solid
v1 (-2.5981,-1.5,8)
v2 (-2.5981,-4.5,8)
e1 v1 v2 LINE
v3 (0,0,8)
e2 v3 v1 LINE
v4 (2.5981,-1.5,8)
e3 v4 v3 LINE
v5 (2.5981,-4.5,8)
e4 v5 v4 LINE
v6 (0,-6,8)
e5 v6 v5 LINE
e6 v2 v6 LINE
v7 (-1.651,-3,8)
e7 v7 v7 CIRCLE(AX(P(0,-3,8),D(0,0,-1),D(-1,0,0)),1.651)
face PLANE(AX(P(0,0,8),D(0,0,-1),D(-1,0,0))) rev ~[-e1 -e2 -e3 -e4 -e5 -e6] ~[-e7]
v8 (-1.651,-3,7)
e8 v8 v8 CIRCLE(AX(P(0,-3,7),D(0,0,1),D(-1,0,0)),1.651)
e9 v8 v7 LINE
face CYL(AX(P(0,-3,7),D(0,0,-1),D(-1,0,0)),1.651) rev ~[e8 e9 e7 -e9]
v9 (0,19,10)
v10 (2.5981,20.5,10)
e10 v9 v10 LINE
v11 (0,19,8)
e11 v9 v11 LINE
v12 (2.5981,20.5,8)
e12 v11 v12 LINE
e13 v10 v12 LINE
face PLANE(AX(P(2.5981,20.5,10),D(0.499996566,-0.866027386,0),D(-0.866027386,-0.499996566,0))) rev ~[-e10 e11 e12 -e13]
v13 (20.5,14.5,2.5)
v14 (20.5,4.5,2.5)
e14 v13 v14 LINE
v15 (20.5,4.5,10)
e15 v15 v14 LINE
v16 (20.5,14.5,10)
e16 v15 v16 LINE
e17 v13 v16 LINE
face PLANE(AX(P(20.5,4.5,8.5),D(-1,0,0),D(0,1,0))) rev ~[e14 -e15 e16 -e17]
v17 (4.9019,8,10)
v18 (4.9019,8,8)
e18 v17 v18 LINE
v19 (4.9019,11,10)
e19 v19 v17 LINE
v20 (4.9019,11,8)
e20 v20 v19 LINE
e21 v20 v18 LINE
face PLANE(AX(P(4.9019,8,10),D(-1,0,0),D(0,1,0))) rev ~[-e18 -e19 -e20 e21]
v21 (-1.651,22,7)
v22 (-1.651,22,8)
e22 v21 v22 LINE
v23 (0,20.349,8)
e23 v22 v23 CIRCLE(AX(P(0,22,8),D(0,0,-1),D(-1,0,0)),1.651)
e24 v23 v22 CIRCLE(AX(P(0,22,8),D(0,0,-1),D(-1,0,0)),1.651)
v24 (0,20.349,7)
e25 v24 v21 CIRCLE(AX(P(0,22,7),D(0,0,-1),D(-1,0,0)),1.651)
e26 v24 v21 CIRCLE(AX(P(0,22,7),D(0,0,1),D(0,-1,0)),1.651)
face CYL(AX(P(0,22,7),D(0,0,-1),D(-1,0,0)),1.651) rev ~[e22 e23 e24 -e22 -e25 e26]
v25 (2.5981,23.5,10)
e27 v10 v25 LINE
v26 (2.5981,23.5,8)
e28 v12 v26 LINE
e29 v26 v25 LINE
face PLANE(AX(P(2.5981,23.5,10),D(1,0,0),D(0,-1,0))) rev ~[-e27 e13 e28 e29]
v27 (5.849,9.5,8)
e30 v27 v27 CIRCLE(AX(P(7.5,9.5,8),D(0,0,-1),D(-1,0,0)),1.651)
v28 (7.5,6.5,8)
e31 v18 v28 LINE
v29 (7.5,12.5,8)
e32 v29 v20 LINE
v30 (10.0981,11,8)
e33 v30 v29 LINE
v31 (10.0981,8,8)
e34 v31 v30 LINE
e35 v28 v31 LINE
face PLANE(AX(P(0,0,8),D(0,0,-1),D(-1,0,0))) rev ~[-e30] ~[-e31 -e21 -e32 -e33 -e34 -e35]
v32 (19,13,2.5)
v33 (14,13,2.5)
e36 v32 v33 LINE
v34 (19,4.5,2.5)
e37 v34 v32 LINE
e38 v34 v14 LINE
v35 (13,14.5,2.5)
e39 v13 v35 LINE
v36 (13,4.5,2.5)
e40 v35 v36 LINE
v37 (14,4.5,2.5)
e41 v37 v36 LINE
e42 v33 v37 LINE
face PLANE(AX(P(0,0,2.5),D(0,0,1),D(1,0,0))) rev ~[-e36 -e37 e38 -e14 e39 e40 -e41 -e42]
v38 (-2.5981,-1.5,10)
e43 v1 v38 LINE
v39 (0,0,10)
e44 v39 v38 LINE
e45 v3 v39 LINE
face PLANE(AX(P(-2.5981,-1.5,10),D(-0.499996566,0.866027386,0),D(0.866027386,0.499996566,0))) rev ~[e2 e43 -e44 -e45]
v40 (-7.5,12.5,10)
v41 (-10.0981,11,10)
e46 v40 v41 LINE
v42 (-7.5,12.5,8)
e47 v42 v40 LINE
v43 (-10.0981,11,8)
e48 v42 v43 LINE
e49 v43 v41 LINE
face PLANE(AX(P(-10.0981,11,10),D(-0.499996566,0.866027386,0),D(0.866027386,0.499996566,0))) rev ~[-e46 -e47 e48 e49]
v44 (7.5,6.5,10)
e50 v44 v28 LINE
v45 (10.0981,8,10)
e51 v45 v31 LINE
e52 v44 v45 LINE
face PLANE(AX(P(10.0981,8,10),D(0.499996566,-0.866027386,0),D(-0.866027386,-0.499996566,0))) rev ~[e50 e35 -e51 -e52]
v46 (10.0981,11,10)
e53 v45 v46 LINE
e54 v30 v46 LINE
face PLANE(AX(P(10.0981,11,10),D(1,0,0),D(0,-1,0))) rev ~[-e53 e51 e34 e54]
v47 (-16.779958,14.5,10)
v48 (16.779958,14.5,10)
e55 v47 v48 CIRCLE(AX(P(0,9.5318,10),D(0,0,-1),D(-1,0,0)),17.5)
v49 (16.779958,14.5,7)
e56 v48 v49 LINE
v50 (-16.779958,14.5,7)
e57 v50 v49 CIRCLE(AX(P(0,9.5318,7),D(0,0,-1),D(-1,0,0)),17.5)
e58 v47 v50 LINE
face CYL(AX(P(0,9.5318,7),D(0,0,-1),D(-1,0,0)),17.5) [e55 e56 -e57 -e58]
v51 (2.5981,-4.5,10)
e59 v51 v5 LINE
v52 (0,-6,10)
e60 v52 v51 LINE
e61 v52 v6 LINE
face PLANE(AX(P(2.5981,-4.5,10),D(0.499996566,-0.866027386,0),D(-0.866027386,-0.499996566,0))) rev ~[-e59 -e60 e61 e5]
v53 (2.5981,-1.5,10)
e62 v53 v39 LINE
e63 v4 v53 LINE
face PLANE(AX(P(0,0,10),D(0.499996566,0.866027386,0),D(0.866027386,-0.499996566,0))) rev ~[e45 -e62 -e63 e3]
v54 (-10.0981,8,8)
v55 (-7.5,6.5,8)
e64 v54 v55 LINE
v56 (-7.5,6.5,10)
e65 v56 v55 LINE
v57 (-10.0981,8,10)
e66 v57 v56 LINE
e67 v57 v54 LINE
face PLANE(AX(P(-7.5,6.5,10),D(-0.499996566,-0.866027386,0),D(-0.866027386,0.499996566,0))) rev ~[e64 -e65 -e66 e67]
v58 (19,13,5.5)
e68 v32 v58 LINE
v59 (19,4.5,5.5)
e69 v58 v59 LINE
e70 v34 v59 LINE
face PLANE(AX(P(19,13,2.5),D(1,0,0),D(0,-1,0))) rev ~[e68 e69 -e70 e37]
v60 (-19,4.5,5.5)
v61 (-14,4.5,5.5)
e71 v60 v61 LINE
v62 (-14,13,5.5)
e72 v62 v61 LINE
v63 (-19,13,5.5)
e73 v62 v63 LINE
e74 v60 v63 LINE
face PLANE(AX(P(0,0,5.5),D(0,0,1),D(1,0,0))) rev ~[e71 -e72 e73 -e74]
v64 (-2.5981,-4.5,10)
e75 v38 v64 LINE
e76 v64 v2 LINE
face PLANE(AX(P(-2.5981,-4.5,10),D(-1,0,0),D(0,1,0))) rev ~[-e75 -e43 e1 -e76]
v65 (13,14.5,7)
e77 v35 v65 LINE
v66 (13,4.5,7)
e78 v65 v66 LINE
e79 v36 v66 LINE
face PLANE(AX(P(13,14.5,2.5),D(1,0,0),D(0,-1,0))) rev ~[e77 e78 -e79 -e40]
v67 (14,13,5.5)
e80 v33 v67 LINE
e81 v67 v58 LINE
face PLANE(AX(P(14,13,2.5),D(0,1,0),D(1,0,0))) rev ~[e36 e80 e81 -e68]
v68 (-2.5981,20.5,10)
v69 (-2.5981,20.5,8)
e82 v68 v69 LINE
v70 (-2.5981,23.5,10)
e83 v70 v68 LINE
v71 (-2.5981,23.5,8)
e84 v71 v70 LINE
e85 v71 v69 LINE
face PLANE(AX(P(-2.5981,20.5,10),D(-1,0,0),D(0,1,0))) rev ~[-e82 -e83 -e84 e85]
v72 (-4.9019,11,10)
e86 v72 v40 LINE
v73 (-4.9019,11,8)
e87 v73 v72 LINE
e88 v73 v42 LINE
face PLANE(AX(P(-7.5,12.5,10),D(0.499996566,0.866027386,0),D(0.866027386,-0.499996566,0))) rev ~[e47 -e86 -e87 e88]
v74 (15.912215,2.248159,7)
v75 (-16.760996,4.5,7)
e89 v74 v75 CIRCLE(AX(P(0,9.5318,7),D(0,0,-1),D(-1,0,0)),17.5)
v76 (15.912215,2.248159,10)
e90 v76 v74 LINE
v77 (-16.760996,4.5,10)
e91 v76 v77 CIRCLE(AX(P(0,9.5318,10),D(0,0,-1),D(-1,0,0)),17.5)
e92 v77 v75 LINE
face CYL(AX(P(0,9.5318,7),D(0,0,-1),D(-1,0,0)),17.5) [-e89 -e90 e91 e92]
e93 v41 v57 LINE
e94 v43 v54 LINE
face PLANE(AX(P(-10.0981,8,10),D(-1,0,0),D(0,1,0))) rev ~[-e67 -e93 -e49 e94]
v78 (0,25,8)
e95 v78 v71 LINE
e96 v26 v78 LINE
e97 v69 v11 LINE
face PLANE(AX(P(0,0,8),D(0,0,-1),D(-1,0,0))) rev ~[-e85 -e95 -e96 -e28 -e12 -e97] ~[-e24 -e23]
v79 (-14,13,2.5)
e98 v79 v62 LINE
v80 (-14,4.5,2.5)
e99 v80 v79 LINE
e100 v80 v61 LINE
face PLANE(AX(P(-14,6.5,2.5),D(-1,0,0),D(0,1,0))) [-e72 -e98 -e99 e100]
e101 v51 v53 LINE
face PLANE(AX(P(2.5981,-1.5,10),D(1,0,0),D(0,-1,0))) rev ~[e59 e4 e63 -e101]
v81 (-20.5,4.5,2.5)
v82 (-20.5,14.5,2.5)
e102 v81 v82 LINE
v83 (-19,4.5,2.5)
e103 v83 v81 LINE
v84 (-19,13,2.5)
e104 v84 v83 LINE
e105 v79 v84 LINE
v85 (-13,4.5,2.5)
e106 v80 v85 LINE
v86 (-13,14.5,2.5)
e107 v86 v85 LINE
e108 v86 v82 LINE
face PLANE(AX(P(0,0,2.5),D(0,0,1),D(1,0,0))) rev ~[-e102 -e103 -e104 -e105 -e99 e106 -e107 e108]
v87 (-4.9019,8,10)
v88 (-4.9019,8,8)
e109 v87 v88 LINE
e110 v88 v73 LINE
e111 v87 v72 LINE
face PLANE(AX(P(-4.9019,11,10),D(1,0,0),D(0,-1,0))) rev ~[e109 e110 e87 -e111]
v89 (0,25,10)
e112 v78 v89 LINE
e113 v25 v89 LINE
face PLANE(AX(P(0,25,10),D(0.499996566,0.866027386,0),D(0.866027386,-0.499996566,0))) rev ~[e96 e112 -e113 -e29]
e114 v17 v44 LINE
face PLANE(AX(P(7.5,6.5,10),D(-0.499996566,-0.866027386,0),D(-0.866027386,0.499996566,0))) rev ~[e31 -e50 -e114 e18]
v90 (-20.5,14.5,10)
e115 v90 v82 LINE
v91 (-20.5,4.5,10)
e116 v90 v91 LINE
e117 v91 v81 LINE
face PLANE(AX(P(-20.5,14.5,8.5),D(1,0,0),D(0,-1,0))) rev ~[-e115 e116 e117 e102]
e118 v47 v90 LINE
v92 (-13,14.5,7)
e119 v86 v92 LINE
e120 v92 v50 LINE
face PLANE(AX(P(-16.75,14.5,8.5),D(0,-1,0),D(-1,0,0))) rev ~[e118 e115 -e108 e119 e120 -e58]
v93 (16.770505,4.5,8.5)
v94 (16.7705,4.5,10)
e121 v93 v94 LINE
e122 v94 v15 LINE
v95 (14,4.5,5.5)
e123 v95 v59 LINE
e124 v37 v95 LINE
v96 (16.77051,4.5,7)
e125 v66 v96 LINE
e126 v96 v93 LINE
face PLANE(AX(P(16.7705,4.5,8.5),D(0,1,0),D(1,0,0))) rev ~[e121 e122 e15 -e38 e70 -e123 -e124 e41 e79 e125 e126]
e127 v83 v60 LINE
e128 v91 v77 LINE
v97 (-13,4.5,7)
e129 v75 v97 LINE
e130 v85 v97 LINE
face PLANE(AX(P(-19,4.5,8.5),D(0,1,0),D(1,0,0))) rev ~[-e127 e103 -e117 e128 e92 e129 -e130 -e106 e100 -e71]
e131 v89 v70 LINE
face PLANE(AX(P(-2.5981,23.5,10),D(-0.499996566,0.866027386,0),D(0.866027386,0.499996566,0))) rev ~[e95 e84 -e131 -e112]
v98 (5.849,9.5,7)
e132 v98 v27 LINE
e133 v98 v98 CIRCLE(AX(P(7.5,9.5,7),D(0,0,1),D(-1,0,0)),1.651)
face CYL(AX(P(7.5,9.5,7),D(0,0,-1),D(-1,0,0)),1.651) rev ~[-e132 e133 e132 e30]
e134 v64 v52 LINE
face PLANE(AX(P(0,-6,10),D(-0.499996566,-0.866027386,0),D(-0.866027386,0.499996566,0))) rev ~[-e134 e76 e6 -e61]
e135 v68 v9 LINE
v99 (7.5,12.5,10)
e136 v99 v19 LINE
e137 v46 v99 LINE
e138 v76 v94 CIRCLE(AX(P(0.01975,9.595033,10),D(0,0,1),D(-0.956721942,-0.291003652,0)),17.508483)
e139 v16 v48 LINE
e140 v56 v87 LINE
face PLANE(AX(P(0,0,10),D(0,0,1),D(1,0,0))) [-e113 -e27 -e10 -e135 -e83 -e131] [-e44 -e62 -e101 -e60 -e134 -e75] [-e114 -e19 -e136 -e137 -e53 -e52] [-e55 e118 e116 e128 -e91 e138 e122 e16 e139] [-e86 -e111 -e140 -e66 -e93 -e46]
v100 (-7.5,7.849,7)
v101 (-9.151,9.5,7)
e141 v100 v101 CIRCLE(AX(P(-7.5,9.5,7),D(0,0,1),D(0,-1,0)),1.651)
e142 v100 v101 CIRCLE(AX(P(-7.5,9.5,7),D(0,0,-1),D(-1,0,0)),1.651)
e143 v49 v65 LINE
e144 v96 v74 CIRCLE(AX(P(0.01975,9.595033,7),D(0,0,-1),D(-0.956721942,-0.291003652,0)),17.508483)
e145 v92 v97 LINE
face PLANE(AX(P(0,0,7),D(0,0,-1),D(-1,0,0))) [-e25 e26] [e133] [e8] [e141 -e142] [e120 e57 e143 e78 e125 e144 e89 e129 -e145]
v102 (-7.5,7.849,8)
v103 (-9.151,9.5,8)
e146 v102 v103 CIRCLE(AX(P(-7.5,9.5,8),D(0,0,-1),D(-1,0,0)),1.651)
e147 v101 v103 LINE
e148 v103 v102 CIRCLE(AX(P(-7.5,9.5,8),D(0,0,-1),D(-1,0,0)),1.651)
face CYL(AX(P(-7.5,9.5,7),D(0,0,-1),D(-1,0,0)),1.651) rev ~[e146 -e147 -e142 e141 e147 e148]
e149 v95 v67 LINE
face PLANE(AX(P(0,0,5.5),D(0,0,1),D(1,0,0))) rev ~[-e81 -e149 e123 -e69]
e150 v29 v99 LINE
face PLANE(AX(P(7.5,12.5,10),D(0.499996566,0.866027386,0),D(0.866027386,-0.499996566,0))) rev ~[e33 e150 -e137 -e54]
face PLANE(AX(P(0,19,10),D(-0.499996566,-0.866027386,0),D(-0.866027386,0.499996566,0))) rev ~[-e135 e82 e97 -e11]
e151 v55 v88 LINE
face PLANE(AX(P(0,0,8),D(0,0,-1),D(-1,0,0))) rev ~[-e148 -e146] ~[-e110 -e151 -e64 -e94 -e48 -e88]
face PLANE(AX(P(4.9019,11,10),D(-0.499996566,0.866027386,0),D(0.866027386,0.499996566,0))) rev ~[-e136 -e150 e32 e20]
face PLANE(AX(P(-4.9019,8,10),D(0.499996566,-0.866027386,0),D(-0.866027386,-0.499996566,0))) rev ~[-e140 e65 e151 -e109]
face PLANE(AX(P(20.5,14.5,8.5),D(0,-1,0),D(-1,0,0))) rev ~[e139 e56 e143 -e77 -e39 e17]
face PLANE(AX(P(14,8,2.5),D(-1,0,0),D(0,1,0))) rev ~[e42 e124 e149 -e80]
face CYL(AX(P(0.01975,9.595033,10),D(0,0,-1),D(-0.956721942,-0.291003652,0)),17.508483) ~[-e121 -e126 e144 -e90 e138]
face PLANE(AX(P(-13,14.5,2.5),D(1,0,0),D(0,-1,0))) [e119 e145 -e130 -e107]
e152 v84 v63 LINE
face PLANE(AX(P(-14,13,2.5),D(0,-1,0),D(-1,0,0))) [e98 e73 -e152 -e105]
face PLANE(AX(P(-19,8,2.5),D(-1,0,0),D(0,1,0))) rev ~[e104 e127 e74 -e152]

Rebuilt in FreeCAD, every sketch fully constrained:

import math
import FreeCAD as App
import Part
import Sketcher
Q = App.Units.Quantity


def add_polygon(sketch, points):
    """Adds a closed chain of lines whose ends are joined by coincident constraints."""
    first, n = sketch.GeometryCount, len(points)
    for a, b in zip(points, points[1:] + points[:1]):
        sketch.addGeometry(Part.LineSegment(App.Vector(*a, 0), App.Vector(*b, 0)), False)
    for i in range(n):
        sketch.addConstraint(Sketcher.Constraint("Coincident", first + i, 2, first + (i + 1) % n, 1))

doc = App.newDocument("Part")
params = doc.addObject("Spreadsheet::Sheet", "Params")
for row, (alias, value) in enumerate([
    ("sketch1_width", "3 mm"),
    ("sketch1_width2", "4 mm"),
    ("sketch1_width3", "10 mm"),
    ("sketch1_width4", "5 mm"),
    ("sketch1_width5", "38 mm"),
    ("pad1_length", "2.5 mm"),
    ("sketch2_width", "5 mm"),
    ("sketch2_height", "10 mm"),
    ("sketch2_width2", "1.5 mm"),
    ("pad2_length", "3 mm"),
    ("sketch3_width", "8 mm"),
    ("sketch3_height", "10 mm"),
    ("pad3_length", "1.5 mm"),
    ("sketch4_radius", "17.5 mm"),
    ("sketch4_height", "10 mm"),
    ("pad4_length", "1.5 mm"),
    ("pocket1_length", "2.5 mm"),
    ("pocket2_length", "2.5 mm"),
    ("sketch7_height", "10 mm"),
    ("sketch7_width", "0.5 mm"),
    ("pocket3_length", "4.5 mm"),
    ("sketch8_height", "10 mm"),
    ("sketch8_width", "3.75 mm"),
    ("pad5_length", "1.5 mm"),
    ("sketch9_height", "3 mm"),
    ("pocket4_length", "100 mm"),
    ("pad6_length", "1 mm"),
    ("sketch11_width", "3.75 mm"),
    ("pocket5_length", "100 mm"),
    ("sketch12_diameter", "35 mm"),
    ("sketch12_diameter2", "33 mm"),
    ("pad7_length", "3 mm"),
], start=1):
    params.set(f"A{row}", alias)
    params.set(f"B{row}", "=" + value)
    params.setAlias(f"B{row}", alias)

body = doc.addObject("PartDesign::Body", "Body")
body.AllowCompound = True

# Sketch on XY plane
sketch1 = body.newObject("Sketcher::SketchObject", "Sketch")
sketch1.AttachmentSupport = (doc.getObject("XY_Plane"), [""])
sketch1.MapMode = "FlatFace"
add_polygon(sketch1, [(4, 0), (4, 13), (7, 13), (7, 3), (11, 3), (11, 21), (-11, 21), (-11, 3), (-7, 3), (-7, 13), (-4, 13), (-4, 0), (-14, 0), (-14, 13), (-19, 13), (-19, -8), (19, -8), (19, 13), (14, 13), (14, 0)])  # lines 0-19
sketch1.addConstraint(Sketcher.Constraint("Vertical", 0))
sketch1.addConstraint(Sketcher.Constraint("Horizontal", 1))
sketch1.addConstraint(Sketcher.Constraint("Vertical", 2))
sketch1.addConstraint(Sketcher.Constraint("Horizontal", 3))
sketch1.addConstraint(Sketcher.Constraint("Vertical", 4))
sketch1.addConstraint(Sketcher.Constraint("Horizontal", 5))
sketch1.addConstraint(Sketcher.Constraint("Vertical", 6))
sketch1.addConstraint(Sketcher.Constraint("Horizontal", 7))
sketch1.addConstraint(Sketcher.Constraint("Vertical", 8))
sketch1.addConstraint(Sketcher.Constraint("Horizontal", 9))
sketch1.addConstraint(Sketcher.Constraint("Vertical", 10))
sketch1.addConstraint(Sketcher.Constraint("Horizontal", 11))
sketch1.addConstraint(Sketcher.Constraint("Vertical", 12))
sketch1.addConstraint(Sketcher.Constraint("Horizontal", 13))
sketch1.addConstraint(Sketcher.Constraint("Vertical", 14))
sketch1.addConstraint(Sketcher.Constraint("Horizontal", 15))
sketch1.addConstraint(Sketcher.Constraint("Vertical", 16))
sketch1.addConstraint(Sketcher.Constraint("Horizontal", 17))
sketch1.addConstraint(Sketcher.Constraint("Vertical", 18))
sketch1.addConstraint(Sketcher.Constraint("Horizontal", 19))
sketch1.addConstraint(Sketcher.Constraint("Symmetric", 11, 2, 18, 2, -1, 1))
sketch1.addConstraint(Sketcher.Constraint("Symmetric", 3, 2, 6, 2, -2))
sketch1.addConstraint(Sketcher.Constraint("Symmetric", 1, 2, 8, 2, -2))
sketch1.addConstraint(Sketcher.Constraint("Symmetric", 13, 2, 16, 2, -2))
sketch1.addConstraint(Sketcher.Constraint("Symmetric", 10, 2, 19, 2, -2))
sketch1.addConstraint(Sketcher.Constraint("Horizontal", 9, 2, 12, 2))
sketch1.addConstraint(Sketcher.Constraint("Equal", 19, 2))
sketch1.addConstraint(Sketcher.Constraint("DistanceX", 1, 1, 1, 2, 3.0))
sketch1.addConstraint(Sketcher.Constraint("DistanceX", 3, 1, 3, 2, 4.0))
sketch1.addConstraint(Sketcher.Constraint("DistanceX", 11, 2, 11, 1, 10.0))
sketch1.addConstraint(Sketcher.Constraint("DistanceX", 13, 2, 13, 1, 5.0))
sketch1.addConstraint(Sketcher.Constraint("DistanceX", 15, 1, 15, 2, 38.0))
sketch1.addConstraint(Sketcher.Constraint("DistanceY", 0, 1, 0, 2, 13.0))
sketch1.addConstraint(Sketcher.Constraint("DistanceY", 14, 2, 14, 1, 21.0))
sketch1.addConstraint(Sketcher.Constraint("DistanceY", -1, 1, 4, 2, 21.0))
sketch1.setExpression("Constraints[47]", "Params.sketch1_width")
sketch1.setExpression("Constraints[48]", "Params.sketch1_width2")
sketch1.setExpression("Constraints[49]", "Params.sketch1_width3")
sketch1.setExpression("Constraints[50]", "Params.sketch1_width4")
sketch1.setExpression("Constraints[51]", "Params.sketch1_width5")
pad1 = body.newObject("PartDesign::Pad", "Pad")
pad1.Profile = sketch1
pad1.setExpression("Length", "Params.pad1_length")

# Sketch on XY plane
sketch2 = body.newObject("Sketcher::SketchObject", "Sketch001")
sketch2.AttachmentSupport = (doc.getObject("XY_Plane"), [""])
sketch2.MapMode = "FlatFace"
sketch2.AttachmentOffset = App.Placement(App.Vector(0, 0, 2.5), App.Rotation())
add_polygon(sketch2, [(-12.5, 14.5), (-20.5, 14.5), (-20.5, 4.5), (-19, 4.5), (-19, 13), (-14, 13), (-14, 4.5), (-12.5, 4.5)])  # lines 0-7
add_polygon(sketch2, [(12.5, 14.5), (12.5, 4.5), (14, 4.5), (14, 13), (19, 13), (19, 4.5), (20.5, 4.5), (20.5, 14.5)])  # lines 8-15
sketch2.addConstraint(Sketcher.Constraint("Horizontal", 0))
sketch2.addConstraint(Sketcher.Constraint("Vertical", 1))
sketch2.addConstraint(Sketcher.Constraint("Horizontal", 2))
sketch2.addConstraint(Sketcher.Constraint("Vertical", 3))
sketch2.addConstraint(Sketcher.Constraint("Horizontal", 4))
sketch2.addConstraint(Sketcher.Constraint("Vertical", 5))
sketch2.addConstraint(Sketcher.Constraint("Horizontal", 6))
sketch2.addConstraint(Sketcher.Constraint("Vertical", 7))
sketch2.addConstraint(Sketcher.Constraint("Vertical", 8))
sketch2.addConstraint(Sketcher.Constraint("Horizontal", 9))
sketch2.addConstraint(Sketcher.Constraint("Vertical", 10))
sketch2.addConstraint(Sketcher.Constraint("Horizontal", 11))
sketch2.addConstraint(Sketcher.Constraint("Vertical", 12))
sketch2.addConstraint(Sketcher.Constraint("Horizontal", 13))
sketch2.addConstraint(Sketcher.Constraint("Vertical", 14))
sketch2.addConstraint(Sketcher.Constraint("Horizontal", 15))
sketch2.addConstraint(Sketcher.Constraint("Symmetric", 6, 2, 8, 2, -2))
sketch2.addConstraint(Sketcher.Constraint("Symmetric", 4, 2, 10, 2, -2))
sketch2.addConstraint(Sketcher.Constraint("Symmetric", 2, 2, 12, 2, -2))
sketch2.addConstraint(Sketcher.Constraint("Symmetric", 0, 2, 14, 2, -2))
sketch2.addConstraint(Sketcher.Constraint("Horizontal", 2, 2, 5, 2))
sketch2.addConstraint(Sketcher.Constraint("Equal", 2, 6))
sketch2.addConstraint(Sketcher.Constraint("DistanceX", 4, 1, 4, 2, 5.0))
sketch2.addConstraint(Sketcher.Constraint("DistanceY", 1, 2, 1, 1, 10.0))
sketch2.addConstraint(Sketcher.Constraint("DistanceX", 2, 1, 2, 2, 1.5))
sketch2.addConstraint(Sketcher.Constraint("DistanceY", 3, 2, 0, 2, 1.5))
sketch2.addConstraint(Sketcher.Constraint("DistanceX", 2, 2, -1, 1, 19.0))
sketch2.addConstraint(Sketcher.Constraint("DistanceY", -1, 1, 3, 2, 13.0))
sketch2.setExpression("Constraints[38]", "Params.sketch2_width")
sketch2.setExpression("Constraints[39]", "Params.sketch2_height")
sketch2.setExpression("Constraints[40]", "Params.sketch2_width2")
pad2 = body.newObject("PartDesign::Pad", "Pad001")
pad2.Profile = sketch2
pad2.setExpression("Length", "Params.pad2_length")

# Sketch on XY plane
sketch3 = body.newObject("Sketcher::SketchObject", "Sketch002")
sketch3.AttachmentSupport = (doc.getObject("XY_Plane"), [""])
sketch3.MapMode = "FlatFace"
sketch3.AttachmentOffset = App.Placement(App.Vector(0, 0, 5.5), App.Rotation())
add_polygon(sketch3, [(-12.5, 4.5), (-12.5, 14.5), (-20.5, 14.5), (-20.5, 4.5)])  # lines 0-3
add_polygon(sketch3, [(20.5, 14.5), (12.5, 14.5), (12.5, 4.5), (20.5, 4.5)])  # lines 4-7
sketch3.addConstraint(Sketcher.Constraint("Vertical", 0))
sketch3.addConstraint(Sketcher.Constraint("Horizontal", 1))
sketch3.addConstraint(Sketcher.Constraint("Vertical", 2))
sketch3.addConstraint(Sketcher.Constraint("Horizontal", 3))
sketch3.addConstraint(Sketcher.Constraint("Horizontal", 4))
sketch3.addConstraint(Sketcher.Constraint("Vertical", 5))
sketch3.addConstraint(Sketcher.Constraint("Horizontal", 6))
sketch3.addConstraint(Sketcher.Constraint("Vertical", 7))
sketch3.addConstraint(Sketcher.Constraint("Symmetric", 0, 2, 4, 2, -2))
sketch3.addConstraint(Sketcher.Constraint("Symmetric", 2, 2, 6, 2, -2))
sketch3.addConstraint(Sketcher.Constraint("DistanceX", 1, 2, 1, 1, 8.0))
sketch3.addConstraint(Sketcher.Constraint("DistanceY", 0, 1, 0, 2, 10.0))
sketch3.addConstraint(Sketcher.Constraint("DistanceX", 0, 2, 4, 2, 25.0))
sketch3.addConstraint(Sketcher.Constraint("DistanceY", -1, 1, 0, 2, 14.5))
sketch3.setExpression("Constraints[18]", "Params.sketch3_width")
sketch3.setExpression("Constraints[19]", "Params.sketch3_height")
pad3 = body.newObject("PartDesign::Pad", "Pad002")
pad3.Profile = sketch3
pad3.setExpression("Length", "Params.pad3_length")

# Sketch on XY plane
sketch4 = body.newObject("Sketcher::SketchObject", "Sketch003")
sketch4.AttachmentSupport = (doc.getObject("XY_Plane"), [""])
sketch4.MapMode = "FlatFace"
sketch4.AttachmentOffset = App.Placement(App.Vector(0, 0, 7), App.Rotation())
sketch4.addGeometry(Part.ArcOfCircle(Part.Circle(App.Vector(0, 9.5, 0), App.Vector(0, 0, 1), 17.5), math.radians(16.60155), math.radians(163.39845)), False)
sketch4.addGeometry(Part.LineSegment(App.Vector(-16.77051, 14.5, 0), App.Vector(-20.5, 14.5, 0)), False)
sketch4.addGeometry(Part.LineSegment(App.Vector(-20.5, 14.5, 0), App.Vector(-20.5, 4.5, 0)), False)
sketch4.addGeometry(Part.LineSegment(App.Vector(-20.5, 4.5, 0), App.Vector(-16.77051, 4.5, 0)), False)
sketch4.addGeometry(Part.ArcOfCircle(Part.Circle(App.Vector(0, 9.5, 0), App.Vector(0, 0, 1), 17.5), math.radians(-163.39845), math.radians(-16.60155)), False)
sketch4.addGeometry(Part.LineSegment(App.Vector(16.77051, 4.5, 0), App.Vector(20.5, 4.5, 0)), False)
sketch4.addGeometry(Part.LineSegment(App.Vector(20.5, 4.5, 0), App.Vector(20.5, 14.5, 0)), False)
sketch4.addGeometry(Part.LineSegment(App.Vector(20.5, 14.5, 0), App.Vector(16.77051, 14.5, 0)), False)
sketch4.addConstraint(Sketcher.Constraint("Coincident", 0, 2, 1, 1))
sketch4.addConstraint(Sketcher.Constraint("Coincident", 1, 2, 2, 1))
sketch4.addConstraint(Sketcher.Constraint("Coincident", 2, 2, 3, 1))
sketch4.addConstraint(Sketcher.Constraint("Coincident", 3, 2, 4, 1))
sketch4.addConstraint(Sketcher.Constraint("Coincident", 4, 2, 5, 1))
sketch4.addConstraint(Sketcher.Constraint("Coincident", 5, 2, 6, 1))
sketch4.addConstraint(Sketcher.Constraint("Coincident", 6, 2, 7, 1))
sketch4.addConstraint(Sketcher.Constraint("Coincident", 7, 2, 0, 1))
sketch4.addConstraint(Sketcher.Constraint("Horizontal", 1))
sketch4.addConstraint(Sketcher.Constraint("Vertical", 2))
sketch4.addConstraint(Sketcher.Constraint("Horizontal", 3))
sketch4.addConstraint(Sketcher.Constraint("Horizontal", 5))
sketch4.addConstraint(Sketcher.Constraint("Vertical", 6))
sketch4.addConstraint(Sketcher.Constraint("Horizontal", 7))
sketch4.addConstraint(Sketcher.Constraint("Coincident", 4, 3, 0, 3))
sketch4.addConstraint(Sketcher.Constraint("Equal", 0, 4))
sketch4.addConstraint(Sketcher.Constraint("Symmetric", 3, 2, 4, 2, -2))
sketch4.addConstraint(Sketcher.Constraint("Symmetric", 1, 2, 6, 2, -2))
sketch4.addConstraint(Sketcher.Constraint("Vertical", 0, 2, 3, 2))
sketch4.addConstraint(Sketcher.Constraint("Radius", 0, 17.5))
sketch4.addConstraint(Sketcher.Constraint("DistanceY", 2, 2, 2, 1, 10.0))
sketch4.addConstraint(Sketcher.Constraint("DistanceY", -1, 1, 0, 3, 9.5))
sketch4.addConstraint(Sketcher.Constraint("DistanceX", 1, 2, -1, 1, 20.5))
sketch4.setExpression("Constraints[19]", "Params.sketch4_radius")
sketch4.setExpression("Constraints[20]", "Params.sketch4_height")
pad4 = body.newObject("PartDesign::Pad", "Pad003")
pad4.Profile = sketch4
pad4.setExpression("Length", "Params.pad4_length")

# Sketch on XY plane
sketch5 = body.newObject("Sketcher::SketchObject", "Sketch004")
sketch5.AttachmentSupport = (doc.getObject("XY_Plane"), [""])
sketch5.MapMode = "FlatFace"
sketch5.AttachmentOffset = App.Placement(App.Vector(0, 0, 8.5), App.Rotation())
sketch5.addGeometry(Part.Circle(App.Vector(7.5, 9.5, 0), App.Vector(0, 0, 1), 1.651), False)
sketch5.addGeometry(Part.Circle(App.Vector(-7.5, 9.5, 0), App.Vector(0, 0, 1), 1.651), False)
sketch5.addGeometry(Part.Circle(App.Vector(0, -3, 0), App.Vector(0, 0, 1), 1.651), False)
sketch5.addGeometry(Part.Circle(App.Vector(0, 22, 0), App.Vector(0, 0, 1), 1.651), False)
sketch5.addConstraint(Sketcher.Constraint("Equal", 0, 1))
sketch5.addConstraint(Sketcher.Constraint("Equal", 1, 2))
sketch5.addConstraint(Sketcher.Constraint("Equal", 2, 3))
sketch5.addConstraint(Sketcher.Constraint("Symmetric", 0, 3, 1, 3, -2))
sketch5.addConstraint(Sketcher.Constraint("PointOnObject", 2, 3, -2))
sketch5.addConstraint(Sketcher.Constraint("PointOnObject", 3, 3, -2))
sketch5.addConstraint(Sketcher.Constraint("Diameter", 0, 3.302))
sketch5.addConstraint(Sketcher.Constraint("DistanceX", 1, 3, 0, 3, 15.0))
sketch5.addConstraint(Sketcher.Constraint("DistanceY", 2, 3, -1, 1, 3.0))
sketch5.addConstraint(Sketcher.Constraint("DistanceY", -1, 1, 3, 3, 22.0))
sketch5.addConstraint(Sketcher.Constraint("DistanceY", -1, 1, 0, 3, 9.5))
pocket1 = body.newObject("PartDesign::Pocket", "Pocket")
pocket1.Profile = sketch5
pocket1.setExpression("Length", "Params.pocket1_length")

# Sketch on XY plane
sketch6 = body.newObject("Sketcher::SketchObject", "Sketch005")
sketch6.AttachmentSupport = (doc.getObject("XY_Plane"), [""])
sketch6.MapMode = "FlatFace"
sketch6.AttachmentOffset = App.Placement(App.Vector(0, 0, 2.5), App.Rotation())
add_polygon(sketch6, [(36.0395, 35.743), (36.0395, -19.2499), (-42.4279, -19.2499), (-42.4279, 35.743)])  # lines 0-3
sketch6.addConstraint(Sketcher.Constraint("Vertical", 0))
sketch6.addConstraint(Sketcher.Constraint("Horizontal", 1))
sketch6.addConstraint(Sketcher.Constraint("Vertical", 2))
sketch6.addConstraint(Sketcher.Constraint("Horizontal", 3))
sketch6.addConstraint(Sketcher.Constraint("DistanceY", 0, 2, 0, 1, 54.993))
sketch6.addConstraint(Sketcher.Constraint("DistanceY", 0, 2, -1, 1, 19.25))
sketch6.addConstraint(Sketcher.Constraint("DistanceX", 1, 2, 1, 1, 78.4674))
sketch6.addConstraint(Sketcher.Constraint("DistanceX", 1, 2, -1, 1, 42.428))
pocket2 = body.newObject("PartDesign::Pocket", "Pocket001")
pocket2.Profile = sketch6
pocket2.setExpression("Length", "Params.pocket2_length")

# Sketch on XY plane
sketch7 = body.newObject("Sketcher::SketchObject", "Sketch006")
sketch7.AttachmentSupport = (doc.getObject("XY_Plane"), [""])
sketch7.MapMode = "FlatFace"
sketch7.AttachmentOffset = App.Placement(App.Vector(0, 0, 2.5), App.Rotation())
add_polygon(sketch7, [(12.5, 4.5), (12.5, 14.5), (13, 14.5), (13, 4.5)])  # lines 0-3
add_polygon(sketch7, [(-12.5, 14.5), (-12.5, 4.5), (-13, 4.5), (-13, 14.5)])  # lines 4-7
sketch7.addConstraint(Sketcher.Constraint("Vertical", 0))
sketch7.addConstraint(Sketcher.Constraint("Horizontal", 1))
sketch7.addConstraint(Sketcher.Constraint("Vertical", 2))
sketch7.addConstraint(Sketcher.Constraint("Horizontal", 3))
sketch7.addConstraint(Sketcher.Constraint("Vertical", 4))
sketch7.addConstraint(Sketcher.Constraint("Horizontal", 5))
sketch7.addConstraint(Sketcher.Constraint("Vertical", 6))
sketch7.addConstraint(Sketcher.Constraint("Horizontal", 7))
sketch7.addConstraint(Sketcher.Constraint("Symmetric", 3, 2, 4, 2, -2))
sketch7.addConstraint(Sketcher.Constraint("Symmetric", 1, 2, 6, 2, -2))
sketch7.addConstraint(Sketcher.Constraint("DistanceY", 0, 1, 0, 2, 10.0))
sketch7.addConstraint(Sketcher.Constraint("DistanceX", 1, 1, 1, 2, 0.5))
sketch7.addConstraint(Sketcher.Constraint("DistanceX", -1, 1, 1, 2, 13.0))
sketch7.addConstraint(Sketcher.Constraint("DistanceY", -1, 1, 0, 2, 14.5))
sketch7.setExpression("Constraints[18]", "Params.sketch7_height")
sketch7.setExpression("Constraints[19]", "Params.sketch7_width")
pocket3 = body.newObject("PartDesign::Pocket", "Pocket002")
pocket3.Profile = sketch7
pocket3.setExpression("Length", "Params.pocket3_length")
pocket3.Reversed = True

# Sketch on XY plane
sketch8 = body.newObject("Sketcher::SketchObject", "Sketch007")
sketch8.AttachmentSupport = (doc.getObject("XY_Plane"), [""])
sketch8.MapMode = "FlatFace"
sketch8.AttachmentOffset = App.Placement(App.Vector(0, 0, 8.5), App.Rotation())
sketch8.addGeometry(Part.LineSegment(App.Vector(20.5, 4.5, 0), App.Vector(20.5, 14.5, 0)), False)
sketch8.addGeometry(Part.LineSegment(App.Vector(20.5, 14.5, 0), App.Vector(16.75, 14.5, 0)), False)
sketch8.addGeometry(Part.ArcOfCircle(Part.Circle(App.Vector(0, 9.5318, 0), App.Vector(0, 0, 1), 17.471277), math.radians(16.520828), math.radians(163.479172)), False)
sketch8.addGeometry(Part.LineSegment(App.Vector(-16.75, 14.5, 0), App.Vector(-20.5, 14.5, 0)), False)
sketch8.addGeometry(Part.LineSegment(App.Vector(-20.5, 14.5, 0), App.Vector(-20.5, 4.5, 0)), False)
sketch8.addGeometry(Part.LineSegment(App.Vector(-20.5, 4.5, 0), App.Vector(-16.731, 4.5, 0)), False)
sketch8.addGeometry(Part.ArcOfCircle(Part.Circle(App.Vector(0.0198, 9.5951, 0), App.Vector(0, 0, 1), 17.508551), math.radians(-163.081784), math.radians(-16.918312)), False)
sketch8.addGeometry(Part.LineSegment(App.Vector(16.7705, 4.5, 0), App.Vector(20.5, 4.5, 0)), False)
sketch8.addGeometry(Part.Circle(App.Vector(-7.5, 9.5, 0), App.Vector(0, 0, 1), 1.651), False)
sketch8.addGeometry(Part.Circle(App.Vector(0, -3, 0), App.Vector(0, 0, 1), 1.651), False)
sketch8.addGeometry(Part.Circle(App.Vector(7.5, 9.5, 0), App.Vector(0, 0, 1), 1.651), False)
sketch8.addGeometry(Part.Circle(App.Vector(0, 22, 0), App.Vector(0, 0, 1), 1.651), False)
sketch8.addConstraint(Sketcher.Constraint("Coincident", 0, 2, 1, 1))
sketch8.addConstraint(Sketcher.Constraint("Coincident", 1, 2, 2, 1))
sketch8.addConstraint(Sketcher.Constraint("Coincident", 2, 2, 3, 1))
sketch8.addConstraint(Sketcher.Constraint("Coincident", 3, 2, 4, 1))
sketch8.addConstraint(Sketcher.Constraint("Coincident", 4, 2, 5, 1))
sketch8.addConstraint(Sketcher.Constraint("Coincident", 5, 2, 6, 1))
sketch8.addConstraint(Sketcher.Constraint("Coincident", 6, 2, 7, 1))
sketch8.addConstraint(Sketcher.Constraint("Coincident", 7, 2, 0, 1))
sketch8.addConstraint(Sketcher.Constraint("Vertical", 0))
sketch8.addConstraint(Sketcher.Constraint("Horizontal", 1))
sketch8.addConstraint(Sketcher.Constraint("Horizontal", 3))
sketch8.addConstraint(Sketcher.Constraint("Vertical", 4))
sketch8.addConstraint(Sketcher.Constraint("Horizontal", 5))
sketch8.addConstraint(Sketcher.Constraint("Horizontal", 7))
sketch8.addConstraint(Sketcher.Constraint("Equal", 8, 9))
sketch8.addConstraint(Sketcher.Constraint("Equal", 9, 10))
sketch8.addConstraint(Sketcher.Constraint("Equal", 10, 11))
sketch8.addConstraint(Sketcher.Constraint("Symmetric", 8, 3, 10, 3, -2))
sketch8.addConstraint(Sketcher.Constraint("Symmetric", 1, 2, 2, 2, -2))
sketch8.addConstraint(Sketcher.Constraint("Symmetric", 4, 2, 7, 2, -2))
sketch8.addConstraint(Sketcher.Constraint("PointOnObject", 9, 3, -2))
sketch8.addConstraint(Sketcher.Constraint("PointOnObject", 11, 3, -2))
sketch8.addConstraint(Sketcher.Constraint("DistanceY", 0, 1, 0, 2, 10.0))
sketch8.addConstraint(Sketcher.Constraint("Diameter", 8, 3.302))
sketch8.addConstraint(Sketcher.Constraint("DistanceY", 9, 3, -1, 1, 3.0))
sketch8.addConstraint(Sketcher.Constraint("DistanceY", -1, 1, 11, 3, 22.0))
sketch8.addConstraint(Sketcher.Constraint("DistanceX", 8, 3, 10, 3, 15.0))
sketch8.addConstraint(Sketcher.Constraint("DistanceX", 10, 3, 0, 2, 13.0))
sketch8.addConstraint(Sketcher.Constraint("DistanceY", 10, 3, 0, 2, 5.0))
sketch8.addConstraint(Sketcher.Constraint("DistanceX", 1, 2, 1, 1, 3.75))
sketch8.addConstraint(Sketcher.Constraint("DistanceY", -1, 1, 8, 3, 9.5))
sketch8.addConstraint(Sketcher.Constraint("Radius", 2, 17.4713))
sketch8.addConstraint(Sketcher.Constraint("Radius", 6, 17.5086))
sketch8.addConstraint(Sketcher.Constraint("DistanceX", 5, 1, 5, 2, 3.769))
sketch8.addConstraint(Sketcher.Constraint("DistanceX", 7, 1, 7, 2, 3.7295))
sketch8.setExpression("Constraints[22]", "Params.sketch8_height")
sketch8.setExpression("Constraints[29]", "Params.sketch8_width")
pad5 = body.newObject("PartDesign::Pad", "Pad004")
pad5.Profile = sketch8
pad5.setExpression("Length", "Params.pad5_length")

# Sketch on XY plane
sketch9 = body.newObject("Sketcher::SketchObject", "Sketch008")
sketch9.AttachmentSupport = (doc.getObject("XY_Plane"), [""])
sketch9.MapMode = "FlatFace"
sketch9.AttachmentOffset = App.Placement(App.Vector(0, 0, 10), App.Rotation())
add_polygon(sketch9, [(-4.9019, 8), (-4.9019, 11), (-7.5, 12.5), (-10.0981, 11), (-10.0981, 8), (-7.5, 6.5)])  # lines 0-5
sketch9.addGeometry(Part.Circle(App.Vector(-7.5, 9.5, 0), App.Vector(0, 0, 1), 1.651), False)  # 6
add_polygon(sketch9, [(2.5981, 20.5), (2.5981, 23.5), (0, 25), (-2.5981, 23.5), (-2.5981, 20.5), (0, 19)])  # lines 7-12
sketch9.addGeometry(Part.Circle(App.Vector(0, 22, 0), App.Vector(0, 0, 1), 1.651), False)  # 13
add_polygon(sketch9, [(10.0981, 8), (10.0981, 11), (7.5, 12.5), (4.9019, 11), (4.9019, 8), (7.5, 6.5)])  # lines 14-19
sketch9.addGeometry(Part.Circle(App.Vector(7.5, 9.5, 0), App.Vector(0, 0, 1), 1.651), False)  # 20
add_polygon(sketch9, [(2.5981, -4.5), (2.5981, -1.5), (0, 0), (-2.5981, -1.5), (-2.5981, -4.5), (0, -6)])  # lines 21-26
sketch9.addGeometry(Part.Circle(App.Vector(0, -3, 0), App.Vector(0, 0, 1), 1.651), False)  # 27
sketch9.addConstraint(Sketcher.Constraint("Vertical", 0))
sketch9.addConstraint(Sketcher.Constraint("Vertical", 3))
sketch9.addConstraint(Sketcher.Constraint("Vertical", 7))
sketch9.addConstraint(Sketcher.Constraint("Vertical", 10))
sketch9.addConstraint(Sketcher.Constraint("Vertical", 14))
sketch9.addConstraint(Sketcher.Constraint("Vertical", 17))
sketch9.addConstraint(Sketcher.Constraint("Vertical", 21))
sketch9.addConstraint(Sketcher.Constraint("Vertical", 24))
sketch9.addConstraint(Sketcher.Constraint("Coincident", 22, 2, -1, 1))
sketch9.addConstraint(Sketcher.Constraint("Equal", 6, 13))
sketch9.addConstraint(Sketcher.Constraint("Equal", 13, 20))
sketch9.addConstraint(Sketcher.Constraint("Equal", 20, 27))
sketch9.addConstraint(Sketcher.Constraint("Symmetric", 6, 3, 20, 3, -2))
sketch9.addConstraint(Sketcher.Constraint("Symmetric", 7, 2, 9, 2, -2))
sketch9.addConstraint(Sketcher.Constraint("Symmetric", 2, 2, 14, 2, -2))
sketch9.addConstraint(Sketcher.Constraint("Symmetric", 1, 2, 15, 2, -2))
sketch9.addConstraint(Sketcher.Constraint("Symmetric", 0, 2, 16, 2, -2))
sketch9.addConstraint(Sketcher.Constraint("Symmetric", 4, 2, 18, 2, -2))
sketch9.addConstraint(Sketcher.Constraint("Symmetric", 21, 2, 23, 2, -2))
sketch9.addConstraint(Sketcher.Constraint("PointOnObject", 13, 3, -2))
sketch9.addConstraint(Sketcher.Constraint("PointOnObject", 27, 3, -2))
sketch9.addConstraint(Sketcher.Constraint("PointOnObject", 8, 2, -2))
sketch9.addConstraint(Sketcher.Constraint("PointOnObject", 11, 2, -2))
sketch9.addConstraint(Sketcher.Constraint("PointOnObject", 25, 2, -2))
sketch9.addConstraint(Sketcher.Constraint("Parallel", 1, 4))
sketch9.addConstraint(Sketcher.Constraint("Parallel", 2, 5))
sketch9.addConstraint(Sketcher.Constraint("Parallel", 4, 8))
sketch9.addConstraint(Sketcher.Constraint("Parallel", 5, 9))
sketch9.addConstraint(Sketcher.Constraint("Parallel", 8, 11))
sketch9.addConstraint(Sketcher.Constraint("Parallel", 9, 12))
sketch9.addConstraint(Sketcher.Constraint("Parallel", 15, 18))
sketch9.addConstraint(Sketcher.Constraint("Parallel", 16, 19))
sketch9.addConstraint(Sketcher.Constraint("Parallel", 18, 22))
sketch9.addConstraint(Sketcher.Constraint("Parallel", 22, 25))
sketch9.addConstraint(Sketcher.Constraint("Parallel", 23, 26))
sketch9.addConstraint(Sketcher.Constraint("Horizontal", 0, 2, 2, 2))
sketch9.addConstraint(Sketcher.Constraint("Horizontal", 3, 2, 5, 2))
sketch9.addConstraint(Sketcher.Constraint("Vertical", 6, 3, 1, 2))
sketch9.addConstraint(Sketcher.Constraint("Vertical", 12, 2, 21, 2))
sketch9.addConstraint(Sketcher.Constraint("Equal", 3, 7))
sketch9.addConstraint(Sketcher.Constraint("Equal", 17, 21))
sketch9.addConstraint(Sketcher.Constraint("Equal", 5, 8))
sketch9.addConstraint(Sketcher.Constraint("DistanceY", 25, 2, -1, 1, 6.0))
sketch9.addConstraint(Sketcher.Constraint("DistanceY", 0, 1, 0, 2, 3.0))
sketch9.addConstraint(Sketcher.Constraint("Angle", 1, Q("150.0002 deg")))
sketch9.addConstraint(Sketcher.Constraint("Diameter", 6, 3.302))
sketch9.addConstraint(Sketcher.Constraint("DistanceY", -1, 1, 13, 3, 22.0))
sketch9.addConstraint(Sketcher.Constraint("DistanceY", 27, 3, -1, 1, 3.0))
sketch9.addConstraint(Sketcher.Constraint("DistanceY", -1, 1, 0, 2, 11.0))
sketch9.addConstraint(Sketcher.Constraint("DistanceY", -1, 1, 8, 2, 25.0))
sketch9.addConstraint(Sketcher.Constraint("DistanceX", 6, 3, 20, 3, 15.0))
sketch9.addConstraint(Sketcher.Constraint("DistanceY", 6, 3, 1, 2, 3.0))
sketch9.setExpression("Constraints[67]", "Params.sketch9_height")
pocket4 = body.newObject("PartDesign::Pocket", "Pocket003")
pocket4.Profile = sketch9
pocket4.setExpression("Length", "Params.pocket4_length")
pocket4.Midplane = True

# Sketch on XY plane
sketch10 = body.newObject("Sketcher::SketchObject", "Sketch009")
sketch10.AttachmentSupport = (doc.getObject("XY_Plane"), [""])
sketch10.MapMode = "FlatFace"
sketch10.AttachmentOffset = App.Placement(App.Vector(0, 0, 7), App.Rotation())
add_polygon(sketch10, [(3.75, 25.4224), (3.75, 15.75), (-4.9019, 15.75), (-4.9019, 25.4224)])  # lines 0-3
sketch10.addGeometry(Part.Circle(App.Vector(0, 22, 0), App.Vector(0, 0, 1), 1.651), False)  # 4
add_polygon(sketch10, [(-11.782, 13.506), (12.2262, 13.506), (12.2262, 3.9308), (-5.95848, 3.9308), (-11.782, 3.9308)])  # lines 5-9
sketch10.addGeometry(Part.Circle(App.Vector(7.5, 9.5, 0), App.Vector(0, 0, 1), 1.651), False)  # 10
sketch10.addGeometry(Part.Circle(App.Vector(-7.5, 9.5, 0), App.Vector(0, 0, 1), 1.651), False)  # 11
add_polygon(sketch10, [(4.9019, 1.9209), (4.9019, -6.5044), (-4.9019, -6.5044), (-4.9019, 1.9209)])  # lines 12-15
sketch10.addGeometry(Part.Circle(App.Vector(0, -3, 0), App.Vector(0, 0, 1), 1.651), False)  # 16
sketch10.addConstraint(Sketcher.Constraint("Vertical", 0))
sketch10.addConstraint(Sketcher.Constraint("Horizontal", 1))
sketch10.addConstraint(Sketcher.Constraint("Vertical", 2))
sketch10.addConstraint(Sketcher.Constraint("Horizontal", 3))
sketch10.addConstraint(Sketcher.Constraint("Horizontal", 5))
sketch10.addConstraint(Sketcher.Constraint("Vertical", 6))
sketch10.addConstraint(Sketcher.Constraint("Horizontal", 7))
sketch10.addConstraint(Sketcher.Constraint("Horizontal", 8))
sketch10.addConstraint(Sketcher.Constraint("Vertical", 9))
sketch10.addConstraint(Sketcher.Constraint("Vertical", 12))
sketch10.addConstraint(Sketcher.Constraint("Horizontal", 13))
sketch10.addConstraint(Sketcher.Constraint("Vertical", 14))
sketch10.addConstraint(Sketcher.Constraint("Horizontal", 15))
sketch10.addConstraint(Sketcher.Constraint("Equal", 4, 10))
sketch10.addConstraint(Sketcher.Constraint("Equal", 10, 11))
sketch10.addConstraint(Sketcher.Constraint("Equal", 11, 16))
sketch10.addConstraint(Sketcher.Constraint("Symmetric", 10, 3, 11, 3, -2))
sketch10.addConstraint(Sketcher.Constraint("PointOnObject", 4, 3, -2))
sketch10.addConstraint(Sketcher.Constraint("PointOnObject", 16, 3, -2))
sketch10.addConstraint(Sketcher.Constraint("Vertical", 2, 2, 13, 2))
sketch10.addConstraint(Sketcher.Constraint("Diameter", 4, 3.302))
sketch10.addConstraint(Sketcher.Constraint("DistanceY", -1, 1, 4, 3, 22.0))
sketch10.addConstraint(Sketcher.Constraint("DistanceY", 16, 3, -1, 1, 3.0))
sketch10.addConstraint(Sketcher.Constraint("DistanceX", 11, 3, 10, 3, 15.0))
sketch10.addConstraint(Sketcher.Constraint("DistanceY", -1, 1, 10, 3, 9.5))
sketch10.addConstraint(Sketcher.Constraint("DistanceX", 1, 2, 1, 1, 8.652))
sketch10.addConstraint(Sketcher.Constraint("DistanceX", -1, 1, 0, 2, 3.75))
sketch10.addConstraint(Sketcher.Constraint("DistanceY", -1, 1, 0, 2, 15.75))
sketch10.addConstraint(Sketcher.Constraint("DistanceX", 8, 2, 1, 2, 6.88))
sketch10.addConstraint(Sketcher.Constraint("DistanceY", 14, 2, 7, 2, 2.01))
sketch10.addConstraint(Sketcher.Constraint("DistanceX", 5, 1, 5, 2, 24.0082))
sketch10.addConstraint(Sketcher.Constraint("DistanceX", 7, 2, 7, 1, 18.1847))
sketch10.addConstraint(Sketcher.Constraint("DistanceX", 13, 2, 13, 1, 9.8038))
sketch10.addConstraint(Sketcher.Constraint("DistanceY", 0, 2, 0, 1, 9.6724))
sketch10.addConstraint(Sketcher.Constraint("DistanceY", 6, 2, 6, 1, 9.5752))
sketch10.addConstraint(Sketcher.Constraint("DistanceY", 12, 2, 12, 1, 8.4253))
sketch10.addConstraint(Sketcher.Constraint("DistanceY", -1, 1, 5, 2, 13.506))
pad6 = body.newObject("PartDesign::Pad", "Pad005")
pad6.Profile = sketch10
pad6.setExpression("Length", "Params.pad6_length")

# Sketch on XY plane
sketch11 = body.newObject("Sketcher::SketchObject", "Sketch010")
sketch11.AttachmentSupport = (doc.getObject("XY_Plane"), [""])
sketch11.MapMode = "FlatFace"
sketch11.AttachmentOffset = App.Placement(App.Vector(0, 0, 10), App.Rotation())
sketch11.addGeometry(Part.ArcOfCircle(Part.Circle(App.Vector(0.0198, 9.5951, 0), App.Vector(0, 0, 1), 17.508551), math.radians(-163.081784), math.radians(-16.918312)), False)
sketch11.addGeometry(Part.LineSegment(App.Vector(-16.731, 4.5, 0), App.Vector(-16.9164, 4.5, 0)), False)
sketch11.addGeometry(Part.LineSegment(App.Vector(-16.9164, 4.5, 0), App.Vector(-24.8012, -1.8101, 0)), False)
sketch11.addGeometry(Part.LineSegment(App.Vector(-24.8012, -1.8101, 0), App.Vector(1.8601, -34.0011, 0)), False)
sketch11.addGeometry(Part.LineSegment(App.Vector(1.8601, -34.0011, 0), App.Vector(26.5055, 4.5, 0)), False)
sketch11.addGeometry(Part.LineSegment(App.Vector(26.5055, 4.5, 0), App.Vector(16.7705, 4.5, 0)), False)
sketch11.addGeometry(Part.ArcOfCircle(Part.Circle(App.Vector(0, 9.5318, 0), App.Vector(0, 0, 1), 17.471277), math.radians(16.520828), math.radians(163.479172)), False)
sketch11.addGeometry(Part.LineSegment(App.Vector(16.75, 14.5, 0), App.Vector(23.8627, 14.5, 0)), False)
sketch11.addGeometry(Part.LineSegment(App.Vector(23.8627, 14.5, 0), App.Vector(5.8015, 43.4279, 0)), False)
sketch11.addGeometry(Part.LineSegment(App.Vector(5.8015, 43.4279, 0), App.Vector(-36.4946, 28.9639, 0)), False)
sketch11.addGeometry(Part.LineSegment(App.Vector(-36.4946, 28.9639, 0), App.Vector(-20.5, 14.5, 0)), False)
sketch11.addGeometry(Part.LineSegment(App.Vector(-20.5, 14.5, 0), App.Vector(-16.75, 14.5, 0)), False)
sketch11.addConstraint(Sketcher.Constraint("Coincident", 0, 1, 1, 1))
sketch11.addConstraint(Sketcher.Constraint("Coincident", 1, 2, 2, 1))
sketch11.addConstraint(Sketcher.Constraint("Coincident", 2, 2, 3, 1))
sketch11.addConstraint(Sketcher.Constraint("Coincident", 3, 2, 4, 1))
sketch11.addConstraint(Sketcher.Constraint("Coincident", 4, 2, 5, 1))
sketch11.addConstraint(Sketcher.Constraint("Coincident", 5, 2, 0, 2))
sketch11.addConstraint(Sketcher.Constraint("Coincident", 6, 1, 7, 1))
sketch11.addConstraint(Sketcher.Constraint("Coincident", 7, 2, 8, 1))
sketch11.addConstraint(Sketcher.Constraint("Coincident", 8, 2, 9, 1))
sketch11.addConstraint(Sketcher.Constraint("Coincident", 9, 2, 10, 1))
sketch11.addConstraint(Sketcher.Constraint("Coincident", 10, 2, 11, 1))
sketch11.addConstraint(Sketcher.Constraint("Coincident", 11, 2, 6, 2))
sketch11.addConstraint(Sketcher.Constraint("Horizontal", 1))
sketch11.addConstraint(Sketcher.Constraint("Horizontal", 5))
sketch11.addConstraint(Sketcher.Constraint("Horizontal", 7))
sketch11.addConstraint(Sketcher.Constraint("Horizontal", 11))
sketch11.addConstraint(Sketcher.Constraint("Symmetric", 6, 1, 11, 2, -2))
sketch11.addConstraint(Sketcher.Constraint("Horizontal", 1, 2, 4, 2))
sketch11.addConstraint(Sketcher.Constraint("DistanceY", 5, 2, 6, 1, 10.0))
sketch11.addConstraint(Sketcher.Constraint("DistanceX", 11, 1, 11, 2, 3.75))
sketch11.addConstraint(Sketcher.Constraint("DistanceY", -1, 1, 0, 1, 4.5))
sketch11.addConstraint(Sketcher.Constraint("DistanceX", 10, 2, -1, 1, 20.5))
sketch11.addConstraint(Sketcher.Constraint("Angle", 2, Q("-141.3302 deg")))
sketch11.addConstraint(Sketcher.Constraint("Angle", 9, Q("-161.1208 deg")))
sketch11.addConstraint(Sketcher.Constraint("Radius", 0, 17.5086))
sketch11.addConstraint(Sketcher.Constraint("Radius", 6, 17.4713))
sketch11.addConstraint(Sketcher.Constraint("DistanceX", 5, 2, 5, 1, 9.735))
sketch11.addConstraint(Sketcher.Constraint("DistanceY", 2, 2, -1, 1, 1.81))
sketch11.addConstraint(Sketcher.Constraint("DistanceX", -1, 1, 3, 2, 1.86))
sketch11.addConstraint(Sketcher.Constraint("DistanceX", 1, 2, 1, 1, 0.1854))
sketch11.addConstraint(Sketcher.Constraint("DistanceX", 7, 1, 7, 2, 7.1127))
sketch11.addConstraint(Sketcher.Constraint("DistanceY", -1, 1, 0, 3, 9.595))
sketch11.addConstraint(Sketcher.Constraint("DistanceX", 0, 1, -1, 1, 16.731))
sketch11.addConstraint(Sketcher.Constraint("DistanceY", 3, 2, -1, 1, 34.001))
sketch11.addConstraint(Sketcher.Constraint("DistanceY", -1, 1, 8, 2, 43.428))
sketch11.addConstraint(Sketcher.Constraint("DistanceY", -1, 1, 9, 2, 28.964))
sketch11.addConstraint(Sketcher.Constraint("DistanceX", 8, 2, 5, 2, 10.969))
sketch11.setExpression("Constraints[19]", "Params.sketch11_width")
pocket5 = body.newObject("PartDesign::Pocket", "Pocket004")
pocket5.Profile = sketch11
pocket5.setExpression("Length", "Params.pocket5_length")
pocket5.Midplane = True

# Sketch on XY plane
sketch12 = body.newObject("Sketcher::SketchObject", "Sketch011")
sketch12.AttachmentSupport = (doc.getObject("XY_Plane"), [""])
sketch12.MapMode = "FlatFace"
sketch12.AttachmentOffset = App.Placement(App.Vector(0, 0, 7), App.Rotation())
sketch12.addGeometry(Part.Circle(App.Vector(0, 9.5318, 0), App.Vector(0, 0, 1), 17.5), False)
sketch12.addGeometry(Part.Circle(App.Vector(0, 9.5318, 0), App.Vector(0, 0, 1), 16.5), False)
sketch12.addConstraint(Sketcher.Constraint("Coincident", 1, 3, 0, 3))
sketch12.addConstraint(Sketcher.Constraint("PointOnObject", 0, 3, -2))
sketch12.addConstraint(Sketcher.Constraint("Diameter", 0, 35.0))
sketch12.addConstraint(Sketcher.Constraint("Diameter", 1, 33.0))
sketch12.addConstraint(Sketcher.Constraint("DistanceY", -1, 1, 0, 3, 9.5318))
sketch12.setExpression("Constraints[2]", "Params.sketch12_diameter")
sketch12.setExpression("Constraints[3]", "Params.sketch12_diameter2")
pad7 = body.newObject("PartDesign::Pad", "Pad006")
pad7.Profile = sketch12
pad7.setExpression("Length", "Params.pad7_length")

doc.recompute()
